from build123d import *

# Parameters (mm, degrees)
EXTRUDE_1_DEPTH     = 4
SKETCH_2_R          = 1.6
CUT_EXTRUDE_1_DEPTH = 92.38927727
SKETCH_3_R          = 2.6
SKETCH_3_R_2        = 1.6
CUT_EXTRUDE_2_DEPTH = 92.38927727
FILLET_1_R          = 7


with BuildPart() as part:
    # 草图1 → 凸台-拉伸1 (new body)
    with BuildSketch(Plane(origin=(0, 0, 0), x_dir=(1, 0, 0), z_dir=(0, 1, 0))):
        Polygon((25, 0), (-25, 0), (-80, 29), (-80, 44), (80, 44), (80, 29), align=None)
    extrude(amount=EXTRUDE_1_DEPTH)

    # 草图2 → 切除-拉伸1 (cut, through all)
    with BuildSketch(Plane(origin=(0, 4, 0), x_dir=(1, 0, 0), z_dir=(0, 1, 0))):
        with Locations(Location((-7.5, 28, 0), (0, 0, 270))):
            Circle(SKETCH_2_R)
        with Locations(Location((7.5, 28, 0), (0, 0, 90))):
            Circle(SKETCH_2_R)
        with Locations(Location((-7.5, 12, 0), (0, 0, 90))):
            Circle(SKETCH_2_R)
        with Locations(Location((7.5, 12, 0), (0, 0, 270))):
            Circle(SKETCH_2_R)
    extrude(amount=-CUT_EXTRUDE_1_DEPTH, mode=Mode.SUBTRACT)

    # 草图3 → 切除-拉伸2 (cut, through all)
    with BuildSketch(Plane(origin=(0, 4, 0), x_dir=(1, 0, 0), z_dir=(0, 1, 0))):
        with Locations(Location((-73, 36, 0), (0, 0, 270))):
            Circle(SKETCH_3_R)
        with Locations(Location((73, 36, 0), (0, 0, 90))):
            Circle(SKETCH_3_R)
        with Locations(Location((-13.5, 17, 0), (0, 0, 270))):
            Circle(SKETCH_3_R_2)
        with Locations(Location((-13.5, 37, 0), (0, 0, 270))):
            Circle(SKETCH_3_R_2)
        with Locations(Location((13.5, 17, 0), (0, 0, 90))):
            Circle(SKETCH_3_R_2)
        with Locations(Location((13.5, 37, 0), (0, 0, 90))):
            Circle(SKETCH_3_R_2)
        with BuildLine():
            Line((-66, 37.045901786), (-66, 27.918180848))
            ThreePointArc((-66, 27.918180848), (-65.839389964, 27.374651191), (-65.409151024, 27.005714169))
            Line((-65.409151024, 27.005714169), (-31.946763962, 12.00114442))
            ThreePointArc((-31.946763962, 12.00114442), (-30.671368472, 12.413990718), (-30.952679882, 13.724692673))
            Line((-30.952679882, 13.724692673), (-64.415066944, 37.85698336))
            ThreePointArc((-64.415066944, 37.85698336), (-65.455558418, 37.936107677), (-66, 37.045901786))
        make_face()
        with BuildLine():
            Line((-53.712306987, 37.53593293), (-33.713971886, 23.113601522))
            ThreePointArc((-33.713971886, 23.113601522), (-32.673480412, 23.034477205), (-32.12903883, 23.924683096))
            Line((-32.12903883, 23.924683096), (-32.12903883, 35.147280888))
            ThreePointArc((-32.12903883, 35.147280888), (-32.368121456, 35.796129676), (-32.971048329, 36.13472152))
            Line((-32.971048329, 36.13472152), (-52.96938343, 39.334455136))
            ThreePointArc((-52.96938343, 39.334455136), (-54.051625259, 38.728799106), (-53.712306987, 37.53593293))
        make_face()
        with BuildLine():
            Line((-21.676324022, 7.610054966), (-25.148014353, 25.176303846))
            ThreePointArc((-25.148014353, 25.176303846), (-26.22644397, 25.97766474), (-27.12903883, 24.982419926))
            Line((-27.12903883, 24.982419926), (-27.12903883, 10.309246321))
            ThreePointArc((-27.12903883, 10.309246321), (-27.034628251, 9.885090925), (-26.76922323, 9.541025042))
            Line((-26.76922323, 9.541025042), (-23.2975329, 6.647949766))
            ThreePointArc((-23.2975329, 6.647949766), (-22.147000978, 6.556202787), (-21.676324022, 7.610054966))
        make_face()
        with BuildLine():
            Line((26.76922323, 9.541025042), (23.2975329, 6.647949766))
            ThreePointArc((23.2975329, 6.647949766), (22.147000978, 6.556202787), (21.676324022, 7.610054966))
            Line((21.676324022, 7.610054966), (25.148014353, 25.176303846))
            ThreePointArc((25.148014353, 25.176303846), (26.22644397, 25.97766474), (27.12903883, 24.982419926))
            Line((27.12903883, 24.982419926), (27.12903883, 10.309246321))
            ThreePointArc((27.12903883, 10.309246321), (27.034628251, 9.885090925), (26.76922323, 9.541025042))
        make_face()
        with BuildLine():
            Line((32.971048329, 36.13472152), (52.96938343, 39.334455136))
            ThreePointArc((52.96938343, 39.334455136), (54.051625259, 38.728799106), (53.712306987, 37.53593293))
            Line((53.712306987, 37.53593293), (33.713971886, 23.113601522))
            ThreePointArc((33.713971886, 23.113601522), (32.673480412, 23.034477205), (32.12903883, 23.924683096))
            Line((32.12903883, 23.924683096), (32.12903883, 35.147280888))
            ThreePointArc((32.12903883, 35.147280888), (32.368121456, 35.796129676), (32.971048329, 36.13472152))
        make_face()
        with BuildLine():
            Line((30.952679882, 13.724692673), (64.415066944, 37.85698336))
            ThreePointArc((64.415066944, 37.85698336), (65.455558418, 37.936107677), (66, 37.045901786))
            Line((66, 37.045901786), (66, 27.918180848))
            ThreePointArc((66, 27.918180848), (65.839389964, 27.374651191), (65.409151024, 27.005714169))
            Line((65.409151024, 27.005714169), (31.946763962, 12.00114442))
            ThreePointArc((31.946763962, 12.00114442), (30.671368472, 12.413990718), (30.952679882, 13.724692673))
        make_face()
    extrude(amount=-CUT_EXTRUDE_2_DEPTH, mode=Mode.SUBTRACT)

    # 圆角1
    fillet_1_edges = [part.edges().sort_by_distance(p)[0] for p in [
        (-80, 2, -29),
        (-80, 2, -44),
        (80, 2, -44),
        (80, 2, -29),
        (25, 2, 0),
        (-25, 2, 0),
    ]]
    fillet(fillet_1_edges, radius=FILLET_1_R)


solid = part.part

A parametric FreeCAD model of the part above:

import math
import FreeCAD as App
import Part
import Sketcher

V = App.Vector
Q = App.Units.Quantity


def edges_at(feature, points):
    """Names of the edges that pass closest to the given points."""
    edges = feature.Shape.Edges
    near = lambda p: min(range(len(edges)), key=lambda i: edges[i].distToShape(Part.Vertex(*p))[0])
    return sorted({f"Edge{near(p) + 1}" for p in points})


def add_polygon(sketch, points):
    """Adds a closed chain of lines whose ends are joined by coincident constraints."""
    first, n = sketch.GeometryCount, len(points)
    for a, b in zip(points, points[1:] + points[:1]):
        sketch.addGeometry(Part.LineSegment(App.Vector(*a, 0), App.Vector(*b, 0)), False)
    for i in range(n):
        sketch.addConstraint(Sketcher.Constraint("Coincident", first + i, 2, first + (i + 1) % n, 1))

doc = App.newDocument("Part")
body = doc.addObject("PartDesign::Body", "Body")

# Sketch on XZ plane
sketch1 = body.newObject("Sketcher::SketchObject", "Sketch")
sketch1.AttachmentSupport = (doc.getObject("XZ_Plane"), [""])
sketch1.MapMode = "FlatFace"
add_polygon(sketch1, [(-25, 0), (25, 0), (80, -29), (80, -44), (-80, -44), (-80, -29)])  # lines 0-5
sketch1.addConstraint([
    Sketcher.Constraint("Horizontal", 0),
    Sketcher.Constraint("Vertical", 2),
    Sketcher.Constraint("Horizontal", 3),
    Sketcher.Constraint("Vertical", 4),
    Sketcher.Constraint("Symmetric", 0, 2, 5, 2, -1, 1),
    Sketcher.Constraint("Symmetric", 1, 2, 4, 2, -2),
    Sketcher.Constraint("DistanceX", 0, 1, 0, 2, Q("50 mm")),
    Sketcher.Constraint("DistanceX", 3, 2, 3, 1, Q("160 mm")),
    Sketcher.Constraint("DistanceY", 2, 2, 2, 1, Q("15 mm")),
    Sketcher.Constraint("DistanceY", 1, 2, -1, 1, Q("29 mm")),
])
pad1 = body.newObject("PartDesign::Pad", "Pad")
pad1.Profile = sketch1
pad1.Length = 4
pad1.Reversed = True

# Sketch on XZ plane
sketch2 = body.newObject("Sketcher::SketchObject", "Sketch001")
sketch2.AttachmentSupport = (doc.getObject("XZ_Plane"), [""])
sketch2.MapMode = "FlatFace"
sketch2.AttachmentOffset = App.Placement(V(0, 0, -4), App.Rotation())
sketch2.addGeometry([
    Part.Circle(V(-7.5, -28, 0), V(0, 0, 1), 1.6),
    Part.Circle(V(7.5, -28, 0), V(0, 0, 1), 1.6),
    Part.Circle(V(-7.5, -12, 0), V(0, 0, 1), 1.6),
    Part.Circle(V(7.5, -12, 0), V(0, 0, 1), 1.6),
], False)
sketch2.addConstraint([
    Sketcher.Constraint("Equal", 0, 1),
    Sketcher.Constraint("Equal", 1, 2),
    Sketcher.Constraint("Equal", 2, 3),
    Sketcher.Constraint("Symmetric", 0, 3, 1, 3, -2),
    Sketcher.Constraint("Symmetric", 2, 3, 3, 3, -2),
    Sketcher.Constraint("Vertical", 0, 3, 2, 3),
    Sketcher.Constraint("Diameter", 0, Q("3.2 mm")),
    Sketcher.Constraint("DistanceY", 0, 3, -1, 1, Q("28 mm")),
    Sketcher.Constraint("DistanceY", 2, 3, -1, 1, Q("12 mm")),
    Sketcher.Constraint("DistanceX", 0, 3, 1, 3, Q("15 mm")),
])
pocket1 = body.newObject("PartDesign::Pocket", "Pocket")
pocket1.Profile = sketch2
pocket1.Type = "ThroughAll"
pocket1.Reversed = True

# Sketch on XZ plane
sketch3 = body.newObject("Sketcher::SketchObject", "Sketch002")
sketch3.AttachmentSupport = (doc.getObject("XZ_Plane"), [""])
sketch3.MapMode = "FlatFace"
sketch3.AttachmentOffset = App.Placement(V(0, 0, -4), App.Rotation())
sketch3.addGeometry([
    Part.Circle(V(-73, -36, 0), V(0, 0, 1), 2.6),  # 0
    Part.Circle(V(73, -36, 0), V(0, 0, 1), 2.6),  # 1
    Part.Circle(V(-13.5, -17, 0), V(0, 0, 1), 1.6),  # 2
    Part.Circle(V(-13.5, -37, 0), V(0, 0, 1), 1.6),  # 3
    Part.Circle(V(13.5, -17, 0), V(0, 0, 1), 1.6),  # 4
    Part.Circle(V(13.5, -37, 0), V(0, 0, 1), 1.6),  # 5
    Part.LineSegment(V(-66, -37, 0), V(-66, -27.9, 0)),  # 6
    Part.ArcOfCircle(Part.Circle(V(-65, -27.9, 0), V(0, 0, 1), 1), math.radians(114), math.radians(180)),  # 7
    Part.LineSegment(V(-65.4, -27, 0), V(-31.9, -12, 0)),  # 8
    Part.ArcOfCircle(Part.Circle(V(-31.5, -12.9, 0), V(0, 0, 1), 1), math.radians(-54), math.radians(114)),  # 9
    Part.LineSegment(V(-31, -13.7, 0), V(-64.4, -37.9, 0)),  # 10
    Part.ArcOfCircle(Part.Circle(V(-65, -37, 0), V(0, 0, 1), 1), math.radians(180), math.radians(306)),  # 11
    Part.LineSegment(V(-53.7, -37.5, 0), V(-33.7, -23.1, 0)),  # 12
    Part.ArcOfCircle(Part.Circle(V(-33.1, -23.9, 0), V(0, 0, 1), 1), math.radians(0), math.radians(126)),  # 13
    Part.LineSegment(V(-32.1, -23.9, 0), V(-32.1, -35.1, 0)),  # 14
    Part.ArcOfCircle(Part.Circle(V(-33.1, -35.1, 0), V(0, 0, 1), 1), math.radians(-81), math.radians(0)),  # 15
    Part.LineSegment(V(-33, -36.1, 0), V(-53, -39.3, 0)),  # 16
    Part.ArcOfCircle(Part.Circle(V(-53.1, -38.3, 0), V(0, 0, 1), 1), math.radians(126), math.radians(279)),  # 17
    Part.LineSegment(V(-21.7, -7.6, 0), V(-25.1, -25.2, 0)),  # 18
    Part.ArcOfCircle(Part.Circle(V(-26.1, -25, 0), V(0, 0, 1), 1), math.radians(180), math.radians(349)),  # 19
    Part.LineSegment(V(-27.1, -25, 0), V(-27.1, -10.3, 0)),  # 20
    Part.ArcOfCircle(Part.Circle(V(-26.1, -10.3, 0), V(0, 0, 1), 1), math.radians(130), math.radians(180)),  # 21
    Part.LineSegment(V(-26.8, -9.5, 0), V(-23.3, -6.6, 0)),  # 22
    Part.ArcOfCircle(Part.Circle(V(-22.7, -7.4, 0), V(0, 0, 1), 1), math.radians(-11), math.radians(130)),  # 23
    Part.LineSegment(V(23.3, -6.6, 0), V(26.8, -9.5, 0)),  # 24
    Part.ArcOfCircle(Part.Circle(V(26.1, -10.3, 0), V(0, 0, 1), 1), math.radians(0), math.radians(50)),  # 25
    Part.LineSegment(V(27.1, -10.3, 0), V(27.1, -25, 0)),  # 26
    Part.ArcOfCircle(Part.Circle(V(26.1, -25, 0), V(0, 0, 1), 1), math.radians(-169), math.radians(0)),  # 27
    Part.LineSegment(V(25.1, -25.2, 0), V(21.7, -7.6, 0)),  # 28
    Part.ArcOfCircle(Part.Circle(V(22.7, -7.4, 0), V(0, 0, 1), 1), math.radians(50), math.radians(191)),  # 29
    Part.LineSegment(V(53, -39.3, 0), V(33, -36.1, 0)),  # 30
    Part.ArcOfCircle(Part.Circle(V(33.1, -35.1, 0), V(0, 0, 1), 1), math.radians(180), math.radians(261)),  # 31
    Part.LineSegment(V(32.1, -35.1, 0), V(32.1, -23.9, 0)),  # 32
    Part.ArcOfCircle(Part.Circle(V(33.1, -23.9, 0), V(0, 0, 1), 1), math.radians(54), math.radians(180)),  # 33
    Part.LineSegment(V(33.7, -23.1, 0), V(53.7, -37.5, 0)),  # 34
    Part.ArcOfCircle(Part.Circle(V(53.1, -38.3, 0), V(0, 0, 1), 1), math.radians(-99), math.radians(54)),  # 35
    Part.LineSegment(V(64.4, -37.9, 0), V(31, -13.7, 0)),  # 36
    Part.ArcOfCircle(Part.Circle(V(31.5, -12.9, 0), V(0, 0, 1), 1), math.radians(66), math.radians(234)),  # 37
    Part.LineSegment(V(31.9, -12, 0), V(65.4, -27, 0)),  # 38
    Part.ArcOfCircle(Part.Circle(V(65, -27.9, 0), V(0, 0, 1), 1), math.radians(0), math.radians(66)),  # 39
    Part.LineSegment(V(66, -27.9, 0), V(66, -37, 0)),  # 40
    Part.ArcOfCircle(Part.Circle(V(65, -37, 0), V(0, 0, 1), 1), math.radians(-126), math.radians(0)),  # 41
], False)
sketch3.addConstraint([
    Sketcher.Constraint("Tangent", 6, 2, 7, 2),
    Sketcher.Constraint("Tangent", 7, 1, 8, 1),
    Sketcher.Constraint("Tangent", 8, 2, 9, 2),
    Sketcher.Constraint("Tangent", 9, 1, 10, 1),
    Sketcher.Constraint("Tangent", 10, 2, 11, 2),
    Sketcher.Constraint("Tangent", 11, 1, 6, 1),
    Sketcher.Constraint("Tangent", 12, 2, 13, 2),
    Sketcher.Constraint("Tangent", 13, 1, 14, 1),
    Sketcher.Constraint("Tangent", 14, 2, 15, 2),
    Sketcher.Constraint("Tangent", 15, 1, 16, 1),
    Sketcher.Constraint("Tangent", 16, 2, 17, 2),
    Sketcher.Constraint("Tangent", 17, 1, 12, 1),
    Sketcher.Constraint("Tangent", 18, 2, 19, 2),
    Sketcher.Constraint("Tangent", 19, 1, 20, 1),
    Sketcher.Constraint("Tangent", 20, 2, 21, 2),
    Sketcher.Constraint("Tangent", 21, 1, 22, 1),
    Sketcher.Constraint("Tangent", 22, 2, 23, 2),
    Sketcher.Constraint("Tangent", 23, 1, 18, 1),
    Sketcher.Constraint("Tangent", 24, 2, 25, 2),
    Sketcher.Constraint("Tangent", 25, 1, 26, 1),
    Sketcher.Constraint("Tangent", 26, 2, 27, 2),
    Sketcher.Constraint("Tangent", 27, 1, 28, 1),
    Sketcher.Constraint("Tangent", 28, 2, 29, 2),
    Sketcher.Constraint("Tangent", 29, 1, 24, 1),
    Sketcher.Constraint("Tangent", 30, 2, 31, 2),
    Sketcher.Constraint("Tangent", 31, 1, 32, 1),
    Sketcher.Constraint("Tangent", 32, 2, 33, 2),
    Sketcher.Constraint("Tangent", 33, 1, 34, 1),
    Sketcher.Constraint("Tangent", 34, 2, 35, 2),
    Sketcher.Constraint("Tangent", 35, 1, 30, 1),
    Sketcher.Constraint("Tangent", 36, 2, 37, 2),
    Sketcher.Constraint("Tangent", 37, 1, 38, 1),
    Sketcher.Constraint("Tangent", 38, 2, 39, 2),
    Sketcher.Constraint("Tangent", 39, 1, 40, 1),
    Sketcher.Constraint("Tangent", 40, 2, 41, 2),
    Sketcher.Constraint("Tangent", 41, 1, 36, 1),
    Sketcher.Constraint("Vertical", 6),
    Sketcher.Constraint("Vertical", 14),
    Sketcher.Constraint("Vertical", 20),
    Sketcher.Constraint("Vertical", 26),
    Sketcher.Constraint("Vertical", 32),
    Sketcher.Constraint("Vertical", 40),
    Sketcher.Constraint("Equal", 0, 1),
    Sketcher.Constraint("Equal", 2, 3),
    Sketcher.Constraint("Equal", 3, 4),
    Sketcher.Constraint("Equal", 4, 5),
    Sketcher.Constraint("Equal", 7, 9),
    Sketcher.Constraint("Equal", 9, 11),
    Sketcher.Constraint("Equal", 11, 13),
    Sketcher.Constraint("Equal", 13, 15),
    Sketcher.Constraint("Equal", 15, 17),
    Sketcher.Constraint("Equal", 17, 19),
    Sketcher.Constraint("Equal", 19, 21),
    Sketcher.Constraint("Equal", 21, 23),
    Sketcher.Constraint("Equal", 23, 25),
    Sketcher.Constraint("Equal", 25, 27),
    Sketcher.Constraint("Equal", 27, 29),
    Sketcher.Constraint("Equal", 29, 31),
    Sketcher.Constraint("Equal", 31, 33),
    Sketcher.Constraint("Equal", 33, 35),
    Sketcher.Constraint("Equal", 35, 37),
    Sketcher.Constraint("Equal", 37, 39),
    Sketcher.Constraint("Equal", 39, 41),
    Sketcher.Constraint("Symmetric", 0, 3, 1, 3, -2),
    Sketcher.Constraint("Symmetric", 2, 3, 4, 3, -2),
    Sketcher.Constraint("Symmetric", 3, 3, 5, 3, -2),
    Sketcher.Constraint("Symmetric", 21, 3, 25, 3, -2),
    Sketcher.Constraint("Symmetric", 23, 3, 29, 3, -2),
    Sketcher.Constraint("Symmetric", 15, 3, 31, 3, -2),
    Sketcher.Constraint("Symmetric", 17, 3, 35, 3, -2),
    Sketcher.Constraint("Symmetric", 9, 3, 37, 3, -2),
    Sketcher.Constraint("Symmetric", 7, 3, 39, 3, -2),
    Sketcher.Constraint("Parallel", 10, 12),
    Sketcher.Constraint("Parallel", 34, 36),
    Sketcher.Constraint("Horizontal", 19, 3, 27, 3),
    Sketcher.Constraint("Horizontal", 13, 3, 33, 3),
    Sketcher.Constraint("Vertical", 2, 3, 3, 3),
    Sketcher.Constraint("Radius", 7, Q("1 mm")),
    Sketcher.Constraint("Diameter", 0, Q("5.2 mm")),
    Sketcher.Constraint("Diameter", 2, Q("3.2 mm")),
    Sketcher.Constraint("DistanceX", 0, 3, -1, 1, Q("73 mm")),
    Sketcher.Constraint("DistanceY", 0, 3, -1, 1, Q("36 mm")),
    Sketcher.Constraint("DistanceY", 2, 3, -1, 1, Q("17 mm")),
    Sketcher.Constraint("DistanceY", 3, 3, -1, 1, Q("37 mm")),
    Sketcher.Constraint("DistanceX", 7, 3, -1, 1, Q("65 mm")),
    Sketcher.Constraint("DistanceX", 2, 3, 4, 3, Q("27 mm")),
    Sketcher.Constraint("DistanceX", 13, 3, 19, 3, Q("7 mm")),
    Sketcher.Constraint("Distance", 10, Q("41.2565 mm")),
    Sketcher.Constraint("DistanceY", 6, 1, 6, 2, Q("9.127721 mm")),
    Sketcher.Constraint("DistanceY", 11, 3, -1, 1, Q("37.045902 mm")),
    Sketcher.Constraint("DistanceY", 12, 2, -1, 1, Q("23.113602 mm")),
    Sketcher.Constraint("DistanceY", 31, 3, 39, 3, Q("7.2291 mm")),
    Sketcher.Constraint("DistanceY", 17, 3, 7, 1, Q("11.3413 mm")),
    Sketcher.Constraint("DistanceY", 8, 2, 21, 3, Q("1.691898 mm")),
    Sketcher.Constraint("DistanceX", 21, 1, 23, 1, Q("5.092899 mm")),
    Sketcher.Constraint("DistanceX", 27, 1, 37, 3, Q("6.389599 mm")),
    Sketcher.Constraint("DistanceY", 30, 2, 26, 2, Q("11.152302 mm")),
    Sketcher.Constraint("Distance", 8, Q("36.672448 mm")),
    Sketcher.Constraint("Distance", 22, Q("4.519128 mm")),
])
pocket2 = body.newObject("PartDesign::Pocket", "Pocket001")
pocket2.Profile = sketch3
pocket2.Type = "ThroughAll"
pocket2.Reversed = True
doc.recompute()

fillet = body.newObject("PartDesign::Fillet", "Fillet")
fillet.Base = (pocket2, edges_at(pocket2, [
    (-80, 2, -29),
    (-80, 2, -44),
    (80, 2, -44),
    (80, 2, -29),
    (25, 2, 0),
    (-25, 2, 0),
]))
fillet.Radius = 7

doc.recompute()
